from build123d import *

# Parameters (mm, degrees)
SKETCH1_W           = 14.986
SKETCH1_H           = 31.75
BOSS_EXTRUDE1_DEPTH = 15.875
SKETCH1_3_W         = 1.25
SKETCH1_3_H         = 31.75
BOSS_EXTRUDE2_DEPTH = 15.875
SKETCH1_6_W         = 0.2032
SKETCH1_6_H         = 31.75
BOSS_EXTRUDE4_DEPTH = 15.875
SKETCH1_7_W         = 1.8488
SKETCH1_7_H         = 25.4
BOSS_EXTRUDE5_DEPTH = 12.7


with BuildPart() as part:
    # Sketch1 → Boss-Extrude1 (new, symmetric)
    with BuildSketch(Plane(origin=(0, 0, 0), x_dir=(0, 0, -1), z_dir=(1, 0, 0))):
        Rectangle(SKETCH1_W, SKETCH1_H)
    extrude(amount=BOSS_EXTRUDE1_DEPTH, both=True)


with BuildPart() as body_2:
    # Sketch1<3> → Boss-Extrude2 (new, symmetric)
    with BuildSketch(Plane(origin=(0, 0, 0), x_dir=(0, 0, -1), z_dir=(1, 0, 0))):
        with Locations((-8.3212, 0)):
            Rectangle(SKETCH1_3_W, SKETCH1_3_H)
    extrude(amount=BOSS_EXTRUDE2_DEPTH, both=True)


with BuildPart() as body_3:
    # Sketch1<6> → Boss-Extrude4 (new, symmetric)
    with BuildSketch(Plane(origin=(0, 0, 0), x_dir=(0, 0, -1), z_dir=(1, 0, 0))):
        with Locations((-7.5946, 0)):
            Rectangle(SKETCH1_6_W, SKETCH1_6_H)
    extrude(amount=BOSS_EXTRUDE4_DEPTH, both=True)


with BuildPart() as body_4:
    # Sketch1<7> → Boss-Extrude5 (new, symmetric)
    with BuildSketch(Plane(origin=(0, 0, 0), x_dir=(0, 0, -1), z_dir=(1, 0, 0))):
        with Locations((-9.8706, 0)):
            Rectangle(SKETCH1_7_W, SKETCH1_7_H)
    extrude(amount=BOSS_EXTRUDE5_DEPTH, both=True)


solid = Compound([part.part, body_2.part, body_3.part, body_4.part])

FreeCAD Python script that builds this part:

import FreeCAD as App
import Part
import Sketcher
from FreeCAD import Vector
Q = App.Units.Quantity

doc = App.newDocument("Part")
body = doc.addObject("PartDesign::Body", "Body")

sketch1 = doc.addObject("Sketcher::SketchObject", "Sketch")
body.addObject(sketch1)
sketch1.AttachmentSupport = (doc.YZ_Plane, [""])
sketch1.MapMode = "FlatFace"
sketch1.addGeometry([
    Part.LineSegment(Vector(16, 7, 0), Vector(-16, 7, 0)),
    Part.LineSegment(Vector(-16, 7, 0), Vector(-16, -7, 0)),
    Part.LineSegment(Vector(-16, -7, 0), Vector(16, -7, 0)),
    Part.LineSegment(Vector(16, -7, 0), Vector(16, 7, 0)),
], False)
sketch1.addConstraint([
    Sketcher.Constraint("Coincident", 0, 2, 1, 1),
    Sketcher.Constraint("Coincident", 1, 2, 2, 1),
    Sketcher.Constraint("Coincident", 2, 2, 3, 1),
    Sketcher.Constraint("Coincident", 3, 2, 0, 1),
    Sketcher.Constraint("Horizontal", 0),
    Sketcher.Constraint("Vertical", 1),
    Sketcher.Constraint("Horizontal", 2),
    Sketcher.Constraint("Vertical", 3),
    Sketcher.Constraint("Symmetric", 0, 2, 2, 2, -1, 1),
    Sketcher.Constraint("DistanceX", 0, 2, 0, 1, Q("1.25 in")),
    Sketcher.Constraint("DistanceY", 1, 2, 1, 1, Q("0.59 in")),
])
pad1 = doc.addObject("PartDesign::Pad", "Pad")
body.addObject(pad1)
pad1.Profile = sketch1
pad1.Length = Q("1.25 in")
pad1.Midplane = True
body2 = doc.addObject("PartDesign::Body", "Body001")

sketch2 = doc.addObject("Sketcher::SketchObject", "Sketch001")
body2.addObject(sketch2)
sketch2.AttachmentSupport = (doc.getObject("YZ_Plane001"), [""])
sketch2.MapMode = "FlatFace"
sketch2.addGeometry([
    Part.LineSegment(Vector(15.9, 8.9, 0), Vector(-15.9, 8.9, 0)),
    Part.LineSegment(Vector(-15.9, 8.9, 0), Vector(-15.9, 7.7, 0)),
    Part.LineSegment(Vector(-15.9, 7.7, 0), Vector(15.9, 7.7, 0)),
    Part.LineSegment(Vector(15.9, 7.7, 0), Vector(15.9, 8.9, 0)),
], False)
sketch2.addConstraint([
    Sketcher.Constraint("Coincident", 0, 2, 1, 1),
    Sketcher.Constraint("Coincident", 1, 2, 2, 1),
    Sketcher.Constraint("Coincident", 2, 2, 3, 1),
    Sketcher.Constraint("Coincident", 3, 2, 0, 1),
    Sketcher.Constraint("Horizontal", 0),
    Sketcher.Constraint("Vertical", 1),
    Sketcher.Constraint("Horizontal", 2),
    Sketcher.Constraint("Vertical", 3),
    Sketcher.Constraint("DistanceX", 0, 2, 0, 1, Q("1.25 in")),
    Sketcher.Constraint("DistanceX", 0, 2, -1, 1, Q("0.625 in")),
    Sketcher.Constraint("DistanceY", -1, 1, 1, 2, Q("0.303 in")),
    Sketcher.Constraint("DistanceY", 1, 2, 1, 1, 1.25),
])
pad2 = doc.addObject("PartDesign::Pad", "Pad001")
body2.addObject(pad2)
pad2.Profile = sketch2
pad2.Length = Q("1.25 in")
pad2.Midplane = True
body3 = doc.addObject("PartDesign::Body", "Body002")

sketch3 = doc.addObject("Sketcher::SketchObject", "Sketch002")
body3.addObject(sketch3)
sketch3.AttachmentSupport = (doc.getObject("YZ_Plane002"), [""])
sketch3.MapMode = "FlatFace"
sketch3.addGeometry([
    Part.LineSegment(Vector(15.88, 7.7, 0), Vector(-15.88, 7.7, 0)),
    Part.LineSegment(Vector(-15.88, 7.7, 0), Vector(-15.88, 7.49, 0)),
    Part.LineSegment(Vector(-15.88, 7.49, 0), Vector(15.88, 7.49, 0)),
    Part.LineSegment(Vector(15.88, 7.49, 0), Vector(15.88, 7.7, 0)),
], False)
sketch3.addConstraint([
    Sketcher.Constraint("Coincident", 0, 2, 1, 1),
    Sketcher.Constraint("Coincident", 1, 2, 2, 1),
    Sketcher.Constraint("Coincident", 2, 2, 3, 1),
    Sketcher.Constraint("Coincident", 3, 2, 0, 1),
    Sketcher.Constraint("Horizontal", 0),
    Sketcher.Constraint("Vertical", 1),
    Sketcher.Constraint("Horizontal", 2),
    Sketcher.Constraint("Vertical", 3),
    Sketcher.Constraint("DistanceX", 0, 2, 0, 1, Q("1.25 in")),
    Sketcher.Constraint("DistanceY", 1, 2, 1, 1, Q("0.008 in")),
    Sketcher.Constraint("DistanceX", 0, 2, -1, 1, Q("0.625 in")),
    Sketcher.Constraint("DistanceY", -1, 1, 0, 2, Q("0.303 in")),
])
pad3 = doc.addObject("PartDesign::Pad", "Pad002")
body3.addObject(pad3)
pad3.Profile = sketch3
pad3.Length = Q("1.25 in")
pad3.Midplane = True
body4 = doc.addObject("PartDesign::Body", "Body003")

sketch4 = doc.addObject("Sketcher::SketchObject", "Sketch003")
body4.addObject(sketch4)
sketch4.AttachmentSupport = (doc.getObject("YZ_Plane003"), [""])
sketch4.MapMode = "FlatFace"
sketch4.addGeometry([
    Part.LineSegment(Vector(12.7, 10.8, 0), Vector(-12.7, 10.8, 0)),
    Part.LineSegment(Vector(-12.7, 10.8, 0), Vector(-12.7, 8.9, 0)),
    Part.LineSegment(Vector(-12.7, 8.9, 0), Vector(12.7, 8.9, 0)),
    Part.LineSegment(Vector(12.7, 8.9, 0), Vector(12.7, 10.8, 0)),
], False)
sketch4.addConstraint([
    Sketcher.Constraint("Coincident", 0, 2, 1, 1),
    Sketcher.Constraint("Coincident", 1, 2, 2, 1),
    Sketcher.Constraint("Coincident", 2, 2, 3, 1),
    Sketcher.Constraint("Coincident", 3, 2, 0, 1),
    Sketcher.Constraint("Horizontal", 0),
    Sketcher.Constraint("Vertical", 1),
    Sketcher.Constraint("Horizontal", 2),
    Sketcher.Constraint("Vertical", 3),
    Sketcher.Constraint("DistanceX", 0, 2, 0, 1, Q("1 in")),
    Sketcher.Constraint("DistanceX", 0, 2, -1, 1, Q("0.5 in")),
    Sketcher.Constraint("DistanceY", -1, 1, 0, 2, Q("0.425 in")),
    Sketcher.Constraint("DistanceY", 1, 2, 1, 1, 1.8488),
])
pad4 = doc.addObject("PartDesign::Pad", "Pad003")
body4.addObject(pad4)
pad4.Profile = sketch4
pad4.Length = Q("1 in")
pad4.Midplane = True

doc.recompute()
